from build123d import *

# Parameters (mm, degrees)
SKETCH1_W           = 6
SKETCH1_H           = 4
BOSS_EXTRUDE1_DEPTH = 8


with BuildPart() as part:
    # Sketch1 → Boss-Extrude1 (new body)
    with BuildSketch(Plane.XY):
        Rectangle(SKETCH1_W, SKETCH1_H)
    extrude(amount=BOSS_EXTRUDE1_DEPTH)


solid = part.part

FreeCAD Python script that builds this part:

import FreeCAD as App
import Part
import Sketcher
Q = App.Units.Quantity

doc = App.newDocument("Part")
params = doc.addObject("Spreadsheet::Sheet", "Params")
for row, (alias, value) in enumerate([
    ("sketch1_width", "6 mm"),
    ("sketch1_height", "4 mm"),
    ("pad1_length", "8 mm"),
], start=1):
    params.set(f"A{row}", alias)
    params.set(f"B{row}", "=" + value)
    params.setAlias(f"B{row}", alias)

body = doc.addObject("PartDesign::Body", "Body")

# Sketch on XY plane
sketch1 = body.newObject("Sketcher::SketchObject", "Sketch")
sketch1.AttachmentSupport = (doc.getObject("XY_Plane"), [""])
sketch1.MapMode = "FlatFace"
sketch1.addGeometry([
    Part.LineSegment(App.Vector(-3, 2, 0), App.Vector(-3, -2, 0)),
    Part.LineSegment(App.Vector(-3, -2, 0), App.Vector(3, -2, 0)),
    Part.LineSegment(App.Vector(3, -2, 0), App.Vector(3, 2, 0)),
    Part.LineSegment(App.Vector(3, 2, 0), App.Vector(-3, 2, 0)),
], False)
sketch1.addConstraint([
    Sketcher.Constraint("Coincident", 0, 2, 1, 1),
    Sketcher.Constraint("Coincident", 1, 2, 2, 1),
    Sketcher.Constraint("Coincident", 2, 2, 3, 1),
    Sketcher.Constraint("Coincident", 3, 2, 0, 1),
    Sketcher.Constraint("Vertical", 0),
    Sketcher.Constraint("Horizontal", 1),
    Sketcher.Constraint("Vertical", 2),
    Sketcher.Constraint("Horizontal", 3),
    Sketcher.Constraint("Symmetric", 0, 2, 2, 2, -1, 1),
    Sketcher.Constraint("DistanceX", 1, 1, 1, 2, Q("6 mm")),
    Sketcher.Constraint("DistanceY", 0, 2, 0, 1, Q("4 mm")),
])
sketch1.setExpression("Constraints[9]", "Params.sketch1_width")
sketch1.setExpression("Constraints[10]", "Params.sketch1_height")
pad1 = body.newObject("PartDesign::Pad", "Pad")
pad1.Profile = sketch1
pad1.setExpression("Length", "Params.pad1_length")

doc.recompute()
